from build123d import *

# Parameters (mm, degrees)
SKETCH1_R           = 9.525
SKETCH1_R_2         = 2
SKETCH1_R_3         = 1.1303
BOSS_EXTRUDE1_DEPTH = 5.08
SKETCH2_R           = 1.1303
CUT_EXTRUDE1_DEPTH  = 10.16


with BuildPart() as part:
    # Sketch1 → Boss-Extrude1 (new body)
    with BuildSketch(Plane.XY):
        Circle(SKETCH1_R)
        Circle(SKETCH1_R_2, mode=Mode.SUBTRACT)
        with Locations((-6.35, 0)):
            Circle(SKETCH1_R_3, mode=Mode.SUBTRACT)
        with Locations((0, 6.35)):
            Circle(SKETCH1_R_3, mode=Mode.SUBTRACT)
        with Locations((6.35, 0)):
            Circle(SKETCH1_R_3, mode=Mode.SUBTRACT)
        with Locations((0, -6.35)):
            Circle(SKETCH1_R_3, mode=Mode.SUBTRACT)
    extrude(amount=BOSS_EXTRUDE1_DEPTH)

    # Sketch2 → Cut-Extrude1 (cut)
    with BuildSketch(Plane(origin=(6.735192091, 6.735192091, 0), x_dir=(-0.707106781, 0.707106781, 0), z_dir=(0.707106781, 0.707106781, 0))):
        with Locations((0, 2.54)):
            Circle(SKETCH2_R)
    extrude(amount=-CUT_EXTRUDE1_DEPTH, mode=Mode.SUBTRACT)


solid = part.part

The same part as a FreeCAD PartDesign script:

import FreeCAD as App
import Part
import Sketcher
Q = App.Units.Quantity

doc = App.newDocument("Part")
body = doc.addObject("PartDesign::Body", "Body")

sketch1 = body.newObject("Sketcher::SketchObject", "Sketch")
sketch1.AttachmentSupport = (doc.getObject("XY_Plane"), [""])
sketch1.MapMode = "FlatFace"
sketch1.addGeometry([
    Part.Circle(App.Vector(0, 0, 0), App.Vector(0, 0, 1), 9.525),
    Part.Circle(App.Vector(0, -6.35, 0), App.Vector(0, 0, 1), 1.1303),
    Part.Circle(App.Vector(-6.35, 0, 0), App.Vector(0, 0, 1), 1.1303),
    Part.Circle(App.Vector(0, 0, 0), App.Vector(0, 0, 1), 2),
    Part.Circle(App.Vector(6.35, 0, 0), App.Vector(0, 0, 1), 1.1303),
    Part.Circle(App.Vector(0, 6.35, 0), App.Vector(0, 0, 1), 1.1303),
], False)
sketch1.addConstraint([
    Sketcher.Constraint("Coincident", 0, 3, -1, 1),
    Sketcher.Constraint("Coincident", 3, 3, -1, 1),
    Sketcher.Constraint("Equal", 1, 2),
    Sketcher.Constraint("Equal", 2, 4),
    Sketcher.Constraint("Equal", 4, 5),
    Sketcher.Constraint("Symmetric", 2, 3, 4, 3, -1, 1),
    Sketcher.Constraint("Symmetric", 1, 3, 5, 3, -1, 1),
    Sketcher.Constraint("PointOnObject", 1, 3, -2),
    Sketcher.Constraint("PointOnObject", 2, 3, -1),
    Sketcher.Constraint("Diameter", 0, Q("0.75 in")),
    Sketcher.Constraint("Diameter", 1, Q("0.089 in")),
    Sketcher.Constraint("DistanceX", 2, 3, 4, 3, Q("0.5 in")),
    Sketcher.Constraint("DistanceY", 1, 3, 5, 3, Q("0.5 in")),
    Sketcher.Constraint("Diameter", 3, 4.0),
])
pad1 = body.newObject("PartDesign::Pad", "Pad")
pad1.Profile = sketch1
pad1.Length = Q("0.2 in")

sketch2 = body.newObject("Sketcher::SketchObject", "Sketch001")
sketch2.Placement = App.Placement(App.Vector(6.735192, 6.735192, 0), App.Rotation(App.Vector(-0.707106781, 0.707106781, 0), App.Vector(0, 0, 0.999999999), App.Vector(0.707106781, 0.707106781, 0), "ZXY"))
sketch2.addGeometry(Part.Circle(App.Vector(0, 2.54, 0), App.Vector(0, 0, 1), 1.1303), False)
sketch2.addConstraint([
    Sketcher.Constraint("PointOnObject", 0, 3, -2),
    Sketcher.Constraint("Diameter", 0, Q("0.089 in")),
    Sketcher.Constraint("DistanceY", -1, 1, 0, 3, Q("0.1 in")),
])
pocket1 = body.newObject("PartDesign::Pocket", "Pocket")
pocket1.Profile = sketch2
pocket1.Length = Q("0.4 in")

doc.recompute()
